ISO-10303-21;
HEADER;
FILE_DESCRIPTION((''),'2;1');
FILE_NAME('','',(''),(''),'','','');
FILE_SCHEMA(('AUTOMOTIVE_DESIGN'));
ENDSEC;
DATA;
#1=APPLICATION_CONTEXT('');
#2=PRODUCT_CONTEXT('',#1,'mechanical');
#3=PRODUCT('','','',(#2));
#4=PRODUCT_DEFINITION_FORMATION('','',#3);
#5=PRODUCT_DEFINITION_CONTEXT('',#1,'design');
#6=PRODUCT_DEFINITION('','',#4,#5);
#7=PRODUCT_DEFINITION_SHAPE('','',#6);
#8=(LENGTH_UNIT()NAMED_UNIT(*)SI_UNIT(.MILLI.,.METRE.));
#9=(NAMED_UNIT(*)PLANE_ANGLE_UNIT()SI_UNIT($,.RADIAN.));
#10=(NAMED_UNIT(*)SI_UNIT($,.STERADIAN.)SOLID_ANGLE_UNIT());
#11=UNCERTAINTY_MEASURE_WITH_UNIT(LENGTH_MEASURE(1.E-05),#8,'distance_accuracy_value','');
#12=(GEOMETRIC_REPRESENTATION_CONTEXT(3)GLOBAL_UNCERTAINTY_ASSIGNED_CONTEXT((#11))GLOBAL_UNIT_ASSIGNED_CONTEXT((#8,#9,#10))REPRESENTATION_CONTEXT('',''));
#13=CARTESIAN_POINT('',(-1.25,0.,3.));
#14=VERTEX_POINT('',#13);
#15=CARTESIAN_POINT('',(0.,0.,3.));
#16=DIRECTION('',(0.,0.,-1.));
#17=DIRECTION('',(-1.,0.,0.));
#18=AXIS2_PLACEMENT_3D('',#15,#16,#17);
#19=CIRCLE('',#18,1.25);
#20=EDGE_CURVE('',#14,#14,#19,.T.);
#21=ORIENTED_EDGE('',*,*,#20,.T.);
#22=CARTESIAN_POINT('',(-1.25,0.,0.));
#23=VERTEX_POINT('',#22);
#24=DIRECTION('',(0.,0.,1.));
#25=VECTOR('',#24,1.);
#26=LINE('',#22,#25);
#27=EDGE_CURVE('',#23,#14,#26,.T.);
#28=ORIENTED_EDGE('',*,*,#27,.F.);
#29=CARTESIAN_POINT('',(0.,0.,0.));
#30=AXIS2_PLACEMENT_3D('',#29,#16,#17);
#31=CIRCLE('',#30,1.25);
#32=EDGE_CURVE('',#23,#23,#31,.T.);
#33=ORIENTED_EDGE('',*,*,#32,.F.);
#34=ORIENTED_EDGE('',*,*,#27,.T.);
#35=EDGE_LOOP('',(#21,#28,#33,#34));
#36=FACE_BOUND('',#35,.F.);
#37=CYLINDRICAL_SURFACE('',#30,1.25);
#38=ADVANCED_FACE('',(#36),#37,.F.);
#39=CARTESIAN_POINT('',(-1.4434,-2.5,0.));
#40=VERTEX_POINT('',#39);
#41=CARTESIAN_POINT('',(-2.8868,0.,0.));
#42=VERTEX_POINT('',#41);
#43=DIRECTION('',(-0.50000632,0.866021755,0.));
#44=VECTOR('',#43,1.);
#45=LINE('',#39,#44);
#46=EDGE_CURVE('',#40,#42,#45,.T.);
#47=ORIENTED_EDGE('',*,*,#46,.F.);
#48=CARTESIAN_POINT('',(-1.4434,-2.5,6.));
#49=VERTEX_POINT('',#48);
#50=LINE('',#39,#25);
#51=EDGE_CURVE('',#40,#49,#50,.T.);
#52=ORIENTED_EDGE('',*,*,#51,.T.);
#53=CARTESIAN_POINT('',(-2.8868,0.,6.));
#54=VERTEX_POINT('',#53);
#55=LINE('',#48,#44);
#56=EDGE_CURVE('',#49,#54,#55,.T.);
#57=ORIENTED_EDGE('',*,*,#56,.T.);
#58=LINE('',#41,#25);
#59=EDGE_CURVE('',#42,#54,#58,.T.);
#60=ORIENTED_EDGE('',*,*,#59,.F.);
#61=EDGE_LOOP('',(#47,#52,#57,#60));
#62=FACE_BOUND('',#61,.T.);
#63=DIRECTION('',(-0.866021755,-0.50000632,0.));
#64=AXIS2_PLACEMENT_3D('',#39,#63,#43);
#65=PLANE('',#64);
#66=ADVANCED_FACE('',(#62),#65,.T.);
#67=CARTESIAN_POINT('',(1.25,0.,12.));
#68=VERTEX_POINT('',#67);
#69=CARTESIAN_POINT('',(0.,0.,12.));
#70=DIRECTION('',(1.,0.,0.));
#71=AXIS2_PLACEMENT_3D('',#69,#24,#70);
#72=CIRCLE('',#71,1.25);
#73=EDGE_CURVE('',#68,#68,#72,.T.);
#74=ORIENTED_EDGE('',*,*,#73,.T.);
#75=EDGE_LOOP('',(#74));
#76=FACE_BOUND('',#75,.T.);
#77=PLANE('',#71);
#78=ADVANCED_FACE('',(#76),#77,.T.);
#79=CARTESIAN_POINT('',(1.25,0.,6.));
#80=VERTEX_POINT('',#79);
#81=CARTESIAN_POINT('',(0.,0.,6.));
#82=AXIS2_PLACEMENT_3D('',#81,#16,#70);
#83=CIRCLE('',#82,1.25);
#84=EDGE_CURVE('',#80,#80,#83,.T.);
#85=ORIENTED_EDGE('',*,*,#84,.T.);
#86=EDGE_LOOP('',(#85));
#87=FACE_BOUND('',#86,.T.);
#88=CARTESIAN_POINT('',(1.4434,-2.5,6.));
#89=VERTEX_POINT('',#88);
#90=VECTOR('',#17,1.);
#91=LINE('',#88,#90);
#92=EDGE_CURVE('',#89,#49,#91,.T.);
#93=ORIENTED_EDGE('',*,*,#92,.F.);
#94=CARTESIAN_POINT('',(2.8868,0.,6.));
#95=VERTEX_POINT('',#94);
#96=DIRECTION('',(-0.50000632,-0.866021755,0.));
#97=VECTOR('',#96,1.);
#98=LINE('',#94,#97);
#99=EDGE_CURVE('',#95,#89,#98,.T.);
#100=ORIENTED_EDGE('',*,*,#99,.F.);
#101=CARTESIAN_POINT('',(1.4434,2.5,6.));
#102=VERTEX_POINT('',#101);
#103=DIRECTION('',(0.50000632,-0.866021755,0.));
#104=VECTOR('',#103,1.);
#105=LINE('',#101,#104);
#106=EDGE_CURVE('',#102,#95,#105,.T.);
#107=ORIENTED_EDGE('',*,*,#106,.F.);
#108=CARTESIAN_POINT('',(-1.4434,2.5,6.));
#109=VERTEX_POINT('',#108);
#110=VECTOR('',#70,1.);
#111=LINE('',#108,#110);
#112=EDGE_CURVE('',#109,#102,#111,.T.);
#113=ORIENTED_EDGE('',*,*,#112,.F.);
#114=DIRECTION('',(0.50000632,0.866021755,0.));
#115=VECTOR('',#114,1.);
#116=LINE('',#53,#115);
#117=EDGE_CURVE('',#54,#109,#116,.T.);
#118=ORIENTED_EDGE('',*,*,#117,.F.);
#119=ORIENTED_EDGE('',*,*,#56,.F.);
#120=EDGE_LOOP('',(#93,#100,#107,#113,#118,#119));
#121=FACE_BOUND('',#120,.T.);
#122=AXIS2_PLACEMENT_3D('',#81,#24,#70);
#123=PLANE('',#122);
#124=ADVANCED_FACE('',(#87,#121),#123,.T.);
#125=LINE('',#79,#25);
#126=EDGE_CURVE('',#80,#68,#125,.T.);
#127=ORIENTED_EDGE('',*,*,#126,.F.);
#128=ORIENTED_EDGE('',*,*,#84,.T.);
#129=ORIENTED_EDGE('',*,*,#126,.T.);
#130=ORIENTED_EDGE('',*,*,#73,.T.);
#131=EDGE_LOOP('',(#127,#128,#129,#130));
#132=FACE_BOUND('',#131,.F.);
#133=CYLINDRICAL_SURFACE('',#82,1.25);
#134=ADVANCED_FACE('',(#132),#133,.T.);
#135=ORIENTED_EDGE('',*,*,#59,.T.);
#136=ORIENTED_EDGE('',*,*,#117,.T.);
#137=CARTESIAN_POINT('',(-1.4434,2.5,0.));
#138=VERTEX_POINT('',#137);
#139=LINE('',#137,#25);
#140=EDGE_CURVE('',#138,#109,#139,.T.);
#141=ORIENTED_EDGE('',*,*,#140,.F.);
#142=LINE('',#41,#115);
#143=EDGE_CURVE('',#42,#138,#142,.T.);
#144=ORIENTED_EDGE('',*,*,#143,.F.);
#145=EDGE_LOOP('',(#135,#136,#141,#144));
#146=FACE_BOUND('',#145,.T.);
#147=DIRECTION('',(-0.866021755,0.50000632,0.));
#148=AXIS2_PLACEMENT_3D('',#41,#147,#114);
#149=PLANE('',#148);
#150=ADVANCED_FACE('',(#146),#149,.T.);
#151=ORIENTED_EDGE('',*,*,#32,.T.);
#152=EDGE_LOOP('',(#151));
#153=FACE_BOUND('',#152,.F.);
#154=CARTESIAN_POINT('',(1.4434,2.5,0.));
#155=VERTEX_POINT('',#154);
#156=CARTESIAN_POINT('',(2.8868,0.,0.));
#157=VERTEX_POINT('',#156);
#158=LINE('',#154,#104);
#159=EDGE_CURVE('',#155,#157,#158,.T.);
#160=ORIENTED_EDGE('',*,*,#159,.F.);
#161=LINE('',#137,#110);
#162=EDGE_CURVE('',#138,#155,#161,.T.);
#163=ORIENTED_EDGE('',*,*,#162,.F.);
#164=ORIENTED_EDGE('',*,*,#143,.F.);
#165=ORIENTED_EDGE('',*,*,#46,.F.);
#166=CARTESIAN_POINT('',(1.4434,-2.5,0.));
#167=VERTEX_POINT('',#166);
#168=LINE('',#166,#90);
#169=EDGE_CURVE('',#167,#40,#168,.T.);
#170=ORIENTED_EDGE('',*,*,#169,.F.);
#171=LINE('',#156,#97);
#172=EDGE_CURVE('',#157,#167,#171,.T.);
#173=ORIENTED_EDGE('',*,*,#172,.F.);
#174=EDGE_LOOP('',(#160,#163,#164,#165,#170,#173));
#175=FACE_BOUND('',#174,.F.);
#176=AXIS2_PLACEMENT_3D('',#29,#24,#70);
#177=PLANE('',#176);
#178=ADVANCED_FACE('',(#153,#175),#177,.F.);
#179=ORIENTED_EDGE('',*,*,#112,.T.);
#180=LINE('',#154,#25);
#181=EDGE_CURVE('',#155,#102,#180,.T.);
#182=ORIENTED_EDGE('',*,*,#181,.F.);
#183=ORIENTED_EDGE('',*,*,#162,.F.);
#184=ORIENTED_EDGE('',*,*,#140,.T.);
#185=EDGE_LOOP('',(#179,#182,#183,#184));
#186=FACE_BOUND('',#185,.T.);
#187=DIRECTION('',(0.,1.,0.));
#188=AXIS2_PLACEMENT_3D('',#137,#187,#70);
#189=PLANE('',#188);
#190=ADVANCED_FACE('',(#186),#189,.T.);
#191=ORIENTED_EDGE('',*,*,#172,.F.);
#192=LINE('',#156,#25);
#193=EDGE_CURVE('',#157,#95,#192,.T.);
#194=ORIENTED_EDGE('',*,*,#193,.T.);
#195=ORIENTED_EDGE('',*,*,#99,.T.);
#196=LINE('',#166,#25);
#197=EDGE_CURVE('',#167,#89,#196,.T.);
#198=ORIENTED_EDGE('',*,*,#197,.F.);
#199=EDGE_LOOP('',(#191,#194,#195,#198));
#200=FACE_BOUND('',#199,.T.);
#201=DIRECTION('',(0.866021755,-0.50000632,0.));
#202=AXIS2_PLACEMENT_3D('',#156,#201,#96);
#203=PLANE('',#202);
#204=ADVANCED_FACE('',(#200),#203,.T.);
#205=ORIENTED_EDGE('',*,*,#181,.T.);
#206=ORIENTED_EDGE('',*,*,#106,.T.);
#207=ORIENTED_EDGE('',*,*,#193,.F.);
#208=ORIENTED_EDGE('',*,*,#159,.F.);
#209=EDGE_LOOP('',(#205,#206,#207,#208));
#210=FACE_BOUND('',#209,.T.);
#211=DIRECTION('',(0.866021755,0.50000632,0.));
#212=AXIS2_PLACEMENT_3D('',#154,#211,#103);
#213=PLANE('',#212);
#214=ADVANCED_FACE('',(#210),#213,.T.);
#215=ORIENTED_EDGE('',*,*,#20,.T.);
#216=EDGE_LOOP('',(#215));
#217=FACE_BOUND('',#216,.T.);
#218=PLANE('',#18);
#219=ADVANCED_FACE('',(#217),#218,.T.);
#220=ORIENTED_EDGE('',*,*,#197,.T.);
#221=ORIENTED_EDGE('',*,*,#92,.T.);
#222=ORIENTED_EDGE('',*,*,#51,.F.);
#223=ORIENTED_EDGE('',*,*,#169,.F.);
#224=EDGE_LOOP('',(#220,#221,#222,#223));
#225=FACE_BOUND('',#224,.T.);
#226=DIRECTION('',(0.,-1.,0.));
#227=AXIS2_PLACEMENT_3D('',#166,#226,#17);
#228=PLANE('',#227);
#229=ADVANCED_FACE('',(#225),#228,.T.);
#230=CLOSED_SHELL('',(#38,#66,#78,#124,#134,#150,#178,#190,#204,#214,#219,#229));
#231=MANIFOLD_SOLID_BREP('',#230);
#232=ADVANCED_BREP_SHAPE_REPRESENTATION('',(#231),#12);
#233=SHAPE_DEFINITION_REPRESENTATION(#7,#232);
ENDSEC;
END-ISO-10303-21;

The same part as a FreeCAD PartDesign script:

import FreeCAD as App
import Part
import Sketcher
from FreeCAD import Vector
Q = App.Units.Quantity

doc = App.newDocument("Part")
body = doc.addObject("PartDesign::Body", "Body")
body.AllowCompound = True

sketch1 = doc.addObject("Sketcher::SketchObject", "Sketch")
body.addObject(sketch1)
sketch1.AttachmentSupport = (doc.XY_Plane, [""])
sketch1.MapMode = "FlatFace"
sketch1.addGeometry(Part.LineSegment(Vector(1.4, -2.5, 0), Vector(2.9, 0, 0)), False)
sketch1.addGeometry(Part.LineSegment(Vector(2.9, 0, 0), Vector(1.4, 2.5, 0)), False)
sketch1.addGeometry(Part.LineSegment(Vector(1.4, 2.5, 0), Vector(-1.4, 2.5, 0)), False)
sketch1.addGeometry(Part.LineSegment(Vector(-1.4, 2.5, 0), Vector(-2.9, 0, 0)), False)
sketch1.addGeometry(Part.LineSegment(Vector(-2.9, 0, 0), Vector(-1.4, -2.5, 0)), False)
sketch1.addGeometry(Part.LineSegment(Vector(-1.4, -2.5, 0), Vector(1.4, -2.5, 0)), False)
sketch1.addConstraint(Sketcher.Constraint("Coincident", 0, 2, 1, 1))
sketch1.addConstraint(Sketcher.Constraint("Coincident", 1, 2, 2, 1))
sketch1.addConstraint(Sketcher.Constraint("Coincident", 2, 2, 3, 1))
sketch1.addConstraint(Sketcher.Constraint("Coincident", 3, 2, 4, 1))
sketch1.addConstraint(Sketcher.Constraint("Coincident", 4, 2, 5, 1))
sketch1.addConstraint(Sketcher.Constraint("Coincident", 5, 2, 0, 1))
sketch1.addConstraint(Sketcher.Constraint("Horizontal", 2))
sketch1.addConstraint(Sketcher.Constraint("Horizontal", 5))
sketch1.addConstraint(Sketcher.Constraint("Symmetric", 0, 2, 3, 2, -1, 1))
sketch1.addConstraint(Sketcher.Constraint("Symmetric", 1, 2, 4, 2, -1, 1))
sketch1.addConstraint(Sketcher.Constraint("PointOnObject", 0, 2, -1))
sketch1.addConstraint(Sketcher.Constraint("Parallel", 0, 3))
sketch1.addConstraint(Sketcher.Constraint("Vertical", 2, 2, 4, 2))
sketch1.addConstraint(Sketcher.Constraint("DistanceY", 4, 2, 2, 2, Q("5 mm")))
sketch1.addConstraint(Sketcher.Constraint("Angle", 0, Q("59.9996 deg")))
sketch1.addConstraint(Sketcher.Constraint("DistanceX", 2, 2, 2, 1, Q("2.8868 mm")))
pad1 = doc.addObject("PartDesign::Pad", "Pad")
body.addObject(pad1)
pad1.Profile = sketch1
pad1.Length = 6

sketch2 = doc.addObject("Sketcher::SketchObject", "Sketch001")
body.addObject(sketch2)
sketch2.AttachmentSupport = (doc.XY_Plane, [""])
sketch2.MapMode = "FlatFace"
sketch2.addGeometry(Part.Circle(Vector(0, 0, 0), Vector(0, 0, 1), 1.2), False)
sketch2.addConstraint(Sketcher.Constraint("Coincident", 0, 3, -1, 1))
sketch2.addConstraint(Sketcher.Constraint("Diameter", 0, Q("2.5 mm")))
pocket1 = doc.addObject("PartDesign::Pocket", "Pocket")
body.addObject(pocket1)
pocket1.Profile = sketch2
pocket1.Type = "ThroughAll"
pocket1.Reversed = True

sketch3 = doc.addObject("Sketcher::SketchObject", "Sketch002")
body.addObject(sketch3)
sketch3.AttachmentSupport = (doc.XY_Plane, [""])
sketch3.MapMode = "FlatFace"
sketch3.AttachmentOffset = App.Placement(Vector(0, 0, 6), App.Rotation())
sketch3.addGeometry(Part.Circle(Vector(0, 0, 0), Vector(0, 0, 1), 1.2), False)
sketch3.addConstraint(Sketcher.Constraint("Coincident", 0, 3, -1, 1))
sketch3.addConstraint(Sketcher.Constraint("Diameter", 0, Q("2.5 mm")))
pad2 = doc.addObject("PartDesign::Pad", "Pad001")
body.addObject(pad2)
pad2.Profile = sketch3
pad2.Length = 6

sketch4 = doc.addObject("Sketcher::SketchObject", "Sketch003")
body.addObject(sketch4)
sketch4.AttachmentSupport = (doc.XY_Plane, [""])
sketch4.MapMode = "FlatFace"
sketch4.AttachmentOffset = App.Placement(Vector(0, 0, 6), App.Rotation())
sketch4.addGeometry(Part.Circle(Vector(0, 0, 0), Vector(0, 0, 1), 1.2), False)
sketch4.addConstraint(Sketcher.Constraint("Coincident", 0, 3, -1, 1))
sketch4.addConstraint(Sketcher.Constraint("Diameter", 0, Q("2.5 mm")))
pad3 = doc.addObject("PartDesign::Pad", "Pad002")
body.addObject(pad3)
pad3.Profile = sketch4
pad3.Length = 3
pad3.Reversed = True

doc.recompute()
